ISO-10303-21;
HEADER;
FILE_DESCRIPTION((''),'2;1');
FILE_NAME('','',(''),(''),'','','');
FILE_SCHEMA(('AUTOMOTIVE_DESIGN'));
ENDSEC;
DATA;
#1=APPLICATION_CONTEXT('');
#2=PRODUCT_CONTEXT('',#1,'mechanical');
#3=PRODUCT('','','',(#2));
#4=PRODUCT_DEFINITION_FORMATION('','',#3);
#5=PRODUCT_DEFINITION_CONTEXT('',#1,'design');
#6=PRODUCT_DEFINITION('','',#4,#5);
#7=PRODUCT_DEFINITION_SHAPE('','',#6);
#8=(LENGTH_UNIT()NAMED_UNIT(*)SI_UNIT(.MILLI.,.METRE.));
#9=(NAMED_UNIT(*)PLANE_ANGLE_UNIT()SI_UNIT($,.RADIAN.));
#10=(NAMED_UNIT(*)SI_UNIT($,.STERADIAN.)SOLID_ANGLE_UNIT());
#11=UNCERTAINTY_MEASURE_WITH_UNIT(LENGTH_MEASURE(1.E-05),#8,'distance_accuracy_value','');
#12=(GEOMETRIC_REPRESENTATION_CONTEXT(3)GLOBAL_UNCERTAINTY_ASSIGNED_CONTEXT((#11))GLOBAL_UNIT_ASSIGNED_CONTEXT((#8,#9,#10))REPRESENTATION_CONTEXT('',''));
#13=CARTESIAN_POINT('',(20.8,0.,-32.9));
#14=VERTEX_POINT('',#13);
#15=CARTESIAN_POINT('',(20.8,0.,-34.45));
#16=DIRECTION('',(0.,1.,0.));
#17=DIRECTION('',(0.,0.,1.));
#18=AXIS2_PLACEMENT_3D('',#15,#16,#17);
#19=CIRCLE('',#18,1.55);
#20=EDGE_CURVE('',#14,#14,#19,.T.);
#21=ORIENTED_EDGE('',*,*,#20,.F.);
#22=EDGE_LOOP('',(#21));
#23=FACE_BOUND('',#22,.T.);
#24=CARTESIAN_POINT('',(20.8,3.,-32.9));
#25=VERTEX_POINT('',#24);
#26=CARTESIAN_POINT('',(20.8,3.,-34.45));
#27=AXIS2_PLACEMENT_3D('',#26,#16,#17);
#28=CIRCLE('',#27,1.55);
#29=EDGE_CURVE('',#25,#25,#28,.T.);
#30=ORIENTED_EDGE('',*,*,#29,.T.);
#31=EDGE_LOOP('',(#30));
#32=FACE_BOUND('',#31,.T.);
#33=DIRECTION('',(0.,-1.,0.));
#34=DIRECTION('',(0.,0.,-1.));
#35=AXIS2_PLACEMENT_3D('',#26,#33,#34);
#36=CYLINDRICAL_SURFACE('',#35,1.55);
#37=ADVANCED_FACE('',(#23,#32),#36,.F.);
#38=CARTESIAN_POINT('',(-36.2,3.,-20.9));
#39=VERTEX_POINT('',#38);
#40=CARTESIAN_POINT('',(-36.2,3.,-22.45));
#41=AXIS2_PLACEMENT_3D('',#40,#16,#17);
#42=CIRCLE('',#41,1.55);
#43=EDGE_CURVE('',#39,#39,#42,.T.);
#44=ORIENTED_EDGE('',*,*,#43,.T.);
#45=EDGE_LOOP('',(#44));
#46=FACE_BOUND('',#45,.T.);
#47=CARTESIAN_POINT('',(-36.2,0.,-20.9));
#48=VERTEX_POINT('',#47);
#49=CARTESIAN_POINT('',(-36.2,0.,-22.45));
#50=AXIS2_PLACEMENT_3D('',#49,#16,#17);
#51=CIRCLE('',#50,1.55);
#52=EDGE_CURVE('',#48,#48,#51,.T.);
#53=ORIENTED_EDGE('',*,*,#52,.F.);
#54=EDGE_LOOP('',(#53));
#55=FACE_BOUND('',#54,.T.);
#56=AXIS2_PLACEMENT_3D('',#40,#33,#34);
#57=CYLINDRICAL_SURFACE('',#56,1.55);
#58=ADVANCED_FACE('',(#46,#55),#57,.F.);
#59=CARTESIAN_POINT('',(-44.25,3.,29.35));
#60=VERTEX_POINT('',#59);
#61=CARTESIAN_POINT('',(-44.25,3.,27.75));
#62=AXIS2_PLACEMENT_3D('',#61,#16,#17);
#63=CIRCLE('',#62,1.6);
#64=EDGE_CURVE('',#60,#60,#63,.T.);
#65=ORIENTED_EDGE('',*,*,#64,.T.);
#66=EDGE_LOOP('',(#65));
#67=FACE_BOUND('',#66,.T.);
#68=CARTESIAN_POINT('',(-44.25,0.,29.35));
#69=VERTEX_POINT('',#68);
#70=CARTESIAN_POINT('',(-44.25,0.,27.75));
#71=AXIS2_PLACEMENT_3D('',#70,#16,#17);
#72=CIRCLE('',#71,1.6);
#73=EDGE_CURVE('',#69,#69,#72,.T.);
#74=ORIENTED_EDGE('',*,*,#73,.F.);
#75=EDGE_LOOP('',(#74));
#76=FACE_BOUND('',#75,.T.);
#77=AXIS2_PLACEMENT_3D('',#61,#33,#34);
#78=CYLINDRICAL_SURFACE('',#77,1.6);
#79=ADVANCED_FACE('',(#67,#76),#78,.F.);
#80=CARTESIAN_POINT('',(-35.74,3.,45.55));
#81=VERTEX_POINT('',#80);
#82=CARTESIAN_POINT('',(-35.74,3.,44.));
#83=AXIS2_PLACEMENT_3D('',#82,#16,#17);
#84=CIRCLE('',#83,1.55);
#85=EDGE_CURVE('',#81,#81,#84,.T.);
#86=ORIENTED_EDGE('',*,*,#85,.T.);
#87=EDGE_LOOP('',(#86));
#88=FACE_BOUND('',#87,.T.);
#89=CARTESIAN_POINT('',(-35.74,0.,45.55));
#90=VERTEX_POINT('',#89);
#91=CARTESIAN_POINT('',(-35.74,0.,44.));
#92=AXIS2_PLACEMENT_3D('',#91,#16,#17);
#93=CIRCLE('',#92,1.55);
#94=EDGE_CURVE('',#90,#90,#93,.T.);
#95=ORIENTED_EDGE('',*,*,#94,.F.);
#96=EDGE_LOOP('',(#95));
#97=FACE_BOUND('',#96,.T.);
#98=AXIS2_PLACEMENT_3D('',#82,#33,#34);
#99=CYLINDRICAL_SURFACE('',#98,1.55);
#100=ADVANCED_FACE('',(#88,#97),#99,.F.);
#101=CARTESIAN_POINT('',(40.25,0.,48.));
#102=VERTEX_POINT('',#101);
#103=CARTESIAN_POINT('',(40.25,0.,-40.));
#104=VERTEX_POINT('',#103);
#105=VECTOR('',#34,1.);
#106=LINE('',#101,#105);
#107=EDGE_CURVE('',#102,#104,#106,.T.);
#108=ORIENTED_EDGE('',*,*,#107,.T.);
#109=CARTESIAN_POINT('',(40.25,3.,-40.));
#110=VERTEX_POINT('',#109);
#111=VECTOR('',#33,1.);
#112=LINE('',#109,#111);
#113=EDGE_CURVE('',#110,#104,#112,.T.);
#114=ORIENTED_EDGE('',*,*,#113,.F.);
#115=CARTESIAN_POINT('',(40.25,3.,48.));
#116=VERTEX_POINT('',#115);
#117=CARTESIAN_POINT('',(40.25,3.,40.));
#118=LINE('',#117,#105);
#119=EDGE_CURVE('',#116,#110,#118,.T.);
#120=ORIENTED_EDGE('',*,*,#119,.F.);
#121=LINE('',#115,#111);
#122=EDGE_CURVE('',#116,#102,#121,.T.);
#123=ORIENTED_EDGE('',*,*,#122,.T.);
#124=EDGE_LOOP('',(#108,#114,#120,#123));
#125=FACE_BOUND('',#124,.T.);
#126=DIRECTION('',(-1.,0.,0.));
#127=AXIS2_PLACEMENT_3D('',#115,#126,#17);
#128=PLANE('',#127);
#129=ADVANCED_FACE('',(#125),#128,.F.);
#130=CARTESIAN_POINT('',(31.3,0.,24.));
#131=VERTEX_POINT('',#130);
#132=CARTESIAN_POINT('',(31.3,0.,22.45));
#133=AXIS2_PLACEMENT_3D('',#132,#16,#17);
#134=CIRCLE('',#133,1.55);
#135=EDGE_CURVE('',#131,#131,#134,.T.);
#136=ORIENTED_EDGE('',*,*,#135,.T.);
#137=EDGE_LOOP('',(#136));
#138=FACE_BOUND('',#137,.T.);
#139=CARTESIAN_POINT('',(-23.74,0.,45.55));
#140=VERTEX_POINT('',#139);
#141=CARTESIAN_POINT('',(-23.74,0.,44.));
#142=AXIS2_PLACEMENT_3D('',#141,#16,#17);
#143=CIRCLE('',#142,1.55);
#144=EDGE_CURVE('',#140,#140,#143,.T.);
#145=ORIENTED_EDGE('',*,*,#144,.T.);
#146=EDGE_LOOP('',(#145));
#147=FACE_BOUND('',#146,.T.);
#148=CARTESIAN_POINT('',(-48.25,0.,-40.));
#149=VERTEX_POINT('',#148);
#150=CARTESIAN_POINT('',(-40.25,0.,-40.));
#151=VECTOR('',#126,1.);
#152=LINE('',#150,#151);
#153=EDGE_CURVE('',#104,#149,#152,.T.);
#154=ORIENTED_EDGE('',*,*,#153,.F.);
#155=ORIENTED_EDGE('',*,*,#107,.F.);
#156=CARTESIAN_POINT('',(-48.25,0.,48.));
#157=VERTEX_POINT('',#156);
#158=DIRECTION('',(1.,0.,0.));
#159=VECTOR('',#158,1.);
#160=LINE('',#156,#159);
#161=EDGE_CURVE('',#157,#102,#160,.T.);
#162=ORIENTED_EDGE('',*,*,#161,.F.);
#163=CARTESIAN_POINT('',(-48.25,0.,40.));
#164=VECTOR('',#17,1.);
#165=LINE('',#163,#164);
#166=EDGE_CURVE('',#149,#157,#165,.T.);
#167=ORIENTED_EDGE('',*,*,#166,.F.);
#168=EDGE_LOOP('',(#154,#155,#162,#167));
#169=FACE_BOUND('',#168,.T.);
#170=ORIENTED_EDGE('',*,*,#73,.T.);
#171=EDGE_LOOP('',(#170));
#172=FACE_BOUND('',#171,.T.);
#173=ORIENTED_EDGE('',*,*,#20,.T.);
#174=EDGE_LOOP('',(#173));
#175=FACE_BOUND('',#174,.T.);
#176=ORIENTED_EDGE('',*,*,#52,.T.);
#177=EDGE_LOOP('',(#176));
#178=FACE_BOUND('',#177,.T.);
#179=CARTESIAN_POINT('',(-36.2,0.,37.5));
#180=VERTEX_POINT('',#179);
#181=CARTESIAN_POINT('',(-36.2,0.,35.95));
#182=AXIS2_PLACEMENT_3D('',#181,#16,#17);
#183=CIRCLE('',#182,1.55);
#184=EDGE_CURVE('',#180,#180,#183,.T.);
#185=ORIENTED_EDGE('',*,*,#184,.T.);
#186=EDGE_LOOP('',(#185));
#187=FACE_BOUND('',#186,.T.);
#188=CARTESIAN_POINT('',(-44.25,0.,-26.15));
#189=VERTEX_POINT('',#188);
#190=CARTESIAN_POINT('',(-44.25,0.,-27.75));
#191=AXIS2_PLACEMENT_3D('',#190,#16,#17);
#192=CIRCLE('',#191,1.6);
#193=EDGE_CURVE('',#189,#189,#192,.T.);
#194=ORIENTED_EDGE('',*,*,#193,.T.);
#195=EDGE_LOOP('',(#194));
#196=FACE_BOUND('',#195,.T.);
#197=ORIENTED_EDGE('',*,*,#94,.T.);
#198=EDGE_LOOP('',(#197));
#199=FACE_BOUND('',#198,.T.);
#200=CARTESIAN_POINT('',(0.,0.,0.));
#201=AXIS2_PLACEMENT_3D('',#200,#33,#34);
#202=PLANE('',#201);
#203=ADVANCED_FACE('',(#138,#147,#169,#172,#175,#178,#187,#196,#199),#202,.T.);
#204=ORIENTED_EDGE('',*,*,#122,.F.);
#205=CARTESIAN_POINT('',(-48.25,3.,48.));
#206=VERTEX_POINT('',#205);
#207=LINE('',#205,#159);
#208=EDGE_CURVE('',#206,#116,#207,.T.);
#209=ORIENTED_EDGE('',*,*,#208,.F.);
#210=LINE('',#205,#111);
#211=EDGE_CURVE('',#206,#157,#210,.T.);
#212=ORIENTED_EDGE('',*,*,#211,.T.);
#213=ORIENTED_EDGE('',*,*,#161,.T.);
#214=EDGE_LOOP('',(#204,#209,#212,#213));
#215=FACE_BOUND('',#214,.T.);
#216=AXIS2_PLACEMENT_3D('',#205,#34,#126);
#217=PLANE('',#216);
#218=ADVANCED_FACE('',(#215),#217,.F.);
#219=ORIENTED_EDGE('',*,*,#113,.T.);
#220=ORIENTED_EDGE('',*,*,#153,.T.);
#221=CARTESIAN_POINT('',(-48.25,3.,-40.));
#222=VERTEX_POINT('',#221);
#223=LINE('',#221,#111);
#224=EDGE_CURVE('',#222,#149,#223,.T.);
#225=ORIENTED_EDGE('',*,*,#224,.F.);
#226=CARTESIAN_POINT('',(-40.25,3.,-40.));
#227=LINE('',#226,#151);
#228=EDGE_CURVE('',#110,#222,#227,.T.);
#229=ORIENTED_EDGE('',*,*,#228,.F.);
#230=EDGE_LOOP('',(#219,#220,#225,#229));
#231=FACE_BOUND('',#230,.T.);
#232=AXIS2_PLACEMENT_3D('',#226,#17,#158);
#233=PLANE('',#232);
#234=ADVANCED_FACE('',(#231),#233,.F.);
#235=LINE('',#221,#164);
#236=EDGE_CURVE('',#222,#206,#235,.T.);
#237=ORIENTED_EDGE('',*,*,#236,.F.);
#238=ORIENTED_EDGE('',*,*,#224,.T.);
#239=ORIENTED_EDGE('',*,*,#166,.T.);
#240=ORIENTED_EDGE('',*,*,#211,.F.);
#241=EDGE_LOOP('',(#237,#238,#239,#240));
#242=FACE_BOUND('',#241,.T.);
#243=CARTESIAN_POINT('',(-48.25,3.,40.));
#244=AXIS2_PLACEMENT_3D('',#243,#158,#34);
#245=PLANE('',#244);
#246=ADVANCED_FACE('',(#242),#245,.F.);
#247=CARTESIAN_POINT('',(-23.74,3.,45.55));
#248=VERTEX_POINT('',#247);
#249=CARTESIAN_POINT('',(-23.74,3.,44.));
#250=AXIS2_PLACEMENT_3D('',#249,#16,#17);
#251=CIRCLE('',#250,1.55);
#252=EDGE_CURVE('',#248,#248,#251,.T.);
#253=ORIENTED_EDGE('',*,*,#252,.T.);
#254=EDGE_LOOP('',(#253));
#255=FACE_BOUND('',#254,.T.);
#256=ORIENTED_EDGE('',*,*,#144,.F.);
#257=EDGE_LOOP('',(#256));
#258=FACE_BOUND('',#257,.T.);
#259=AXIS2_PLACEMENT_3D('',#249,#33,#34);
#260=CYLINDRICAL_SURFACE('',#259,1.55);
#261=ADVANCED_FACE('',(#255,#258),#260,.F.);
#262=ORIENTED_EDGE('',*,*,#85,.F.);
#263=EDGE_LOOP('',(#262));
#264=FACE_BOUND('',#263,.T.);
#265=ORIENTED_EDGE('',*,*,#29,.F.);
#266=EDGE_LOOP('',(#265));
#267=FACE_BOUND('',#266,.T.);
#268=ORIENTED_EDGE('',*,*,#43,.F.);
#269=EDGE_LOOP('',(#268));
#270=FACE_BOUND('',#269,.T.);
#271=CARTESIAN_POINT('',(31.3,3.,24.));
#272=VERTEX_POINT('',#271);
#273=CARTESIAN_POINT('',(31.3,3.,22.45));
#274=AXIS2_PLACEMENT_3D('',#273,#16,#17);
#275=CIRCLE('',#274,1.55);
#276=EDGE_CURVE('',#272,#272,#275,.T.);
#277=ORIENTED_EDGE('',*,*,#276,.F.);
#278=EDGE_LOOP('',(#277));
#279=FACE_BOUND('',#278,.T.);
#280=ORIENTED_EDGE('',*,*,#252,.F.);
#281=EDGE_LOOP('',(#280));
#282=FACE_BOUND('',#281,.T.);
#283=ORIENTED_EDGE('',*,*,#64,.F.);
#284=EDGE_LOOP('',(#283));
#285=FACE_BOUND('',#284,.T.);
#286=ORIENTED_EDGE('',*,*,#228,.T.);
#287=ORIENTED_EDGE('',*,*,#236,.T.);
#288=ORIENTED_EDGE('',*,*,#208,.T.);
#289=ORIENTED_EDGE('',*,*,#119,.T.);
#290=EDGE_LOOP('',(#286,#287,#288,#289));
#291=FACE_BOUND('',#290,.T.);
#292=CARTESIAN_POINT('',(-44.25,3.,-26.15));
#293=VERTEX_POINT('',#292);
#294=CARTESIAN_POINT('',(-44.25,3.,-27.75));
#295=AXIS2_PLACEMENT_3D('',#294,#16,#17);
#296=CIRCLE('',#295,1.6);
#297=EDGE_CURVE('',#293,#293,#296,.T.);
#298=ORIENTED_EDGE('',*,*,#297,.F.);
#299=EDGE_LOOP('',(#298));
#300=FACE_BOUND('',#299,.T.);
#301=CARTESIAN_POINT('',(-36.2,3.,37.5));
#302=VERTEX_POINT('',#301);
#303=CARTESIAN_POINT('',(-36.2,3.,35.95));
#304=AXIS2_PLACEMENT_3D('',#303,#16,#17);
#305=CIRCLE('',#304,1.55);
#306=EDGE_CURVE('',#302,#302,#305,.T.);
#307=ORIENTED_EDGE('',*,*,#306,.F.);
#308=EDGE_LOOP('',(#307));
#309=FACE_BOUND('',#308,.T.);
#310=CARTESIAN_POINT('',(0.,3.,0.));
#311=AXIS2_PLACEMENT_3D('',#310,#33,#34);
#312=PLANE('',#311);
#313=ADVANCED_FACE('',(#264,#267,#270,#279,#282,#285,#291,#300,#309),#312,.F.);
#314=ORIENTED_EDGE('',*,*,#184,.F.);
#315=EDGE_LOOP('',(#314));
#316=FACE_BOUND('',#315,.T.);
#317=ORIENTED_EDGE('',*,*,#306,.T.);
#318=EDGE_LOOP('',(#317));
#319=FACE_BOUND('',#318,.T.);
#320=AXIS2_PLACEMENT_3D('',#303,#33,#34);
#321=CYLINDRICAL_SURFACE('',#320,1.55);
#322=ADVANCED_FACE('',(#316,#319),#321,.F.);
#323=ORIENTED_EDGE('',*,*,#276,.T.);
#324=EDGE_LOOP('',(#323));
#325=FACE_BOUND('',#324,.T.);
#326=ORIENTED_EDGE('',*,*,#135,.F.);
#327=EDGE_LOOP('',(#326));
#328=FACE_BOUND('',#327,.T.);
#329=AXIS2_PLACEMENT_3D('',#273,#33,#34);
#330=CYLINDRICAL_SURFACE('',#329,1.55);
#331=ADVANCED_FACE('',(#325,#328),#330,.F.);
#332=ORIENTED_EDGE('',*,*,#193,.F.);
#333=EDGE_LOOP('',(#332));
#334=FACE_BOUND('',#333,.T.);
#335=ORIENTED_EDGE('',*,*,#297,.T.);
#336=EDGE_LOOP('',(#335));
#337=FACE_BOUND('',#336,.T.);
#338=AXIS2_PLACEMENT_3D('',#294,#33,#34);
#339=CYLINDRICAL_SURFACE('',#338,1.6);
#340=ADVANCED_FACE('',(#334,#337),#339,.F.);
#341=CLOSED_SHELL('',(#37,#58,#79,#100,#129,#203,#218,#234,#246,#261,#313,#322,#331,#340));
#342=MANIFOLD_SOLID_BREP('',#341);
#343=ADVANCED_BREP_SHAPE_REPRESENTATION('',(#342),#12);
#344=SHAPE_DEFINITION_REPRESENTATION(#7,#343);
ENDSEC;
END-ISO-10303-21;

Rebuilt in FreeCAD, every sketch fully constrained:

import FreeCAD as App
import Part
import Sketcher

V = App.Vector


def add_polygon(sketch, points):
    """Adds a closed chain of lines whose ends are joined by coincident constraints."""
    first, n = sketch.GeometryCount, len(points)
    for a, b in zip(points, points[1:] + points[:1]):
        sketch.addGeometry(Part.LineSegment(App.Vector(*a, 0), App.Vector(*b, 0)), False)
    for i in range(n):
        sketch.addConstraint(Sketcher.Constraint("Coincident", first + i, 2, first + (i + 1) % n, 1))

doc = App.newDocument("Part")
body = doc.addObject("PartDesign::Body", "Body")

sketch1 = body.newObject("Sketcher::SketchObject", "Sketch")
sketch1.AttachmentSupport = (doc.getObject("XZ_Plane"), [""])
sketch1.MapMode = "FlatFace"
add_polygon(sketch1, [(40.2, -40), (-48.2, -40), (-48.2, 48), (40.2, 48)])
sketch1.addGeometry(Part.Circle(V(31.3, 22.4, 0), V(0, 0, 1), 1.6), False)
sketch1.addGeometry(Part.Circle(V(-23.7, 44, 0), V(0, 0, 1), 1.6), False)
sketch1.addGeometry(Part.Circle(V(-35.7, 44, 0), V(0, 0, 1), 1.6), False)
sketch1.addGeometry(Part.Circle(V(-36.2, 36, 0), V(0, 0, 1), 1.6), False)
sketch1.addGeometry(Part.Circle(V(-44.2, 27.8, 0), V(0, 0, 1), 1.6), False)
sketch1.addGeometry(Part.Circle(V(20.8, -34.5, 0), V(0, 0, 1), 1.6), False)
sketch1.addGeometry(Part.Circle(V(-36.2, -22.4, 0), V(0, 0, 1), 1.6), False)
sketch1.addGeometry(Part.Circle(V(-44.2, -27.8, 0), V(0, 0, 1), 1.6), False)
sketch1.addConstraint([
    Sketcher.Constraint("Horizontal", 0),
    Sketcher.Constraint("Vertical", 1),
    Sketcher.Constraint("Horizontal", 2),
    Sketcher.Constraint("Vertical", 3),
    Sketcher.Constraint("Equal", 4, 5),
    Sketcher.Constraint("Equal", 5, 6),
    Sketcher.Constraint("Equal", 6, 7),
    Sketcher.Constraint("Equal", 7, 9),
    Sketcher.Constraint("Equal", 9, 10),
    Sketcher.Constraint("Equal", 8, 11),
    Sketcher.Constraint("Symmetric", 8, 3, 11, 3, -1),
    Sketcher.Constraint("Horizontal", 5, 3, 6, 3),
    Sketcher.Constraint("Vertical", 7, 3, 10, 3),
    Sketcher.Constraint("Diameter", 4, 3.1),
    Sketcher.Constraint("Diameter", 8, 3.2),
    Sketcher.Constraint("DistanceY", 1, 1, 1, 2, 88.0),
    Sketcher.Constraint("DistanceX", 0, 2, 0, 1, 88.5),
    Sketcher.Constraint("DistanceY", -1, 1, 5, 3, 44.0),
    Sketcher.Constraint("DistanceY", 0, 2, -1, 1, 40.0),
    Sketcher.Constraint("DistanceX", 6, 3, 5, 3, 12.0),
    Sketcher.Constraint("DistanceX", 7, 3, 9, 3, 57.0),
    Sketcher.Constraint("DistanceY", 9, 3, 10, 3, 12.0),
    Sketcher.Constraint("DistanceX", 0, 2, 11, 3, 4.0),
    Sketcher.Constraint("DistanceX", -1, 1, 4, 3, 31.3),
    Sketcher.Constraint("DistanceX", 7, 3, -1, 1, 36.2),
    Sketcher.Constraint("DistanceY", 4, 3, 7, 3, 13.5),
    Sketcher.Constraint("DistanceY", 8, 3, 7, 3, 8.2),
    Sketcher.Constraint("DistanceY", 9, 3, 4, 3, 56.9),
    Sketcher.Constraint("DistanceY", 11, 3, 10, 3, 5.3),
    Sketcher.Constraint("DistanceX", 5, 3, -1, 1, 23.74),
    Sketcher.Constraint("DistanceX", 8, 3, -1, 1, 44.25),
])
pad1 = body.newObject("PartDesign::Pad", "Pad")
pad1.Profile = sketch1
pad1.Length = 3
pad1.Reversed = True

doc.recompute()
